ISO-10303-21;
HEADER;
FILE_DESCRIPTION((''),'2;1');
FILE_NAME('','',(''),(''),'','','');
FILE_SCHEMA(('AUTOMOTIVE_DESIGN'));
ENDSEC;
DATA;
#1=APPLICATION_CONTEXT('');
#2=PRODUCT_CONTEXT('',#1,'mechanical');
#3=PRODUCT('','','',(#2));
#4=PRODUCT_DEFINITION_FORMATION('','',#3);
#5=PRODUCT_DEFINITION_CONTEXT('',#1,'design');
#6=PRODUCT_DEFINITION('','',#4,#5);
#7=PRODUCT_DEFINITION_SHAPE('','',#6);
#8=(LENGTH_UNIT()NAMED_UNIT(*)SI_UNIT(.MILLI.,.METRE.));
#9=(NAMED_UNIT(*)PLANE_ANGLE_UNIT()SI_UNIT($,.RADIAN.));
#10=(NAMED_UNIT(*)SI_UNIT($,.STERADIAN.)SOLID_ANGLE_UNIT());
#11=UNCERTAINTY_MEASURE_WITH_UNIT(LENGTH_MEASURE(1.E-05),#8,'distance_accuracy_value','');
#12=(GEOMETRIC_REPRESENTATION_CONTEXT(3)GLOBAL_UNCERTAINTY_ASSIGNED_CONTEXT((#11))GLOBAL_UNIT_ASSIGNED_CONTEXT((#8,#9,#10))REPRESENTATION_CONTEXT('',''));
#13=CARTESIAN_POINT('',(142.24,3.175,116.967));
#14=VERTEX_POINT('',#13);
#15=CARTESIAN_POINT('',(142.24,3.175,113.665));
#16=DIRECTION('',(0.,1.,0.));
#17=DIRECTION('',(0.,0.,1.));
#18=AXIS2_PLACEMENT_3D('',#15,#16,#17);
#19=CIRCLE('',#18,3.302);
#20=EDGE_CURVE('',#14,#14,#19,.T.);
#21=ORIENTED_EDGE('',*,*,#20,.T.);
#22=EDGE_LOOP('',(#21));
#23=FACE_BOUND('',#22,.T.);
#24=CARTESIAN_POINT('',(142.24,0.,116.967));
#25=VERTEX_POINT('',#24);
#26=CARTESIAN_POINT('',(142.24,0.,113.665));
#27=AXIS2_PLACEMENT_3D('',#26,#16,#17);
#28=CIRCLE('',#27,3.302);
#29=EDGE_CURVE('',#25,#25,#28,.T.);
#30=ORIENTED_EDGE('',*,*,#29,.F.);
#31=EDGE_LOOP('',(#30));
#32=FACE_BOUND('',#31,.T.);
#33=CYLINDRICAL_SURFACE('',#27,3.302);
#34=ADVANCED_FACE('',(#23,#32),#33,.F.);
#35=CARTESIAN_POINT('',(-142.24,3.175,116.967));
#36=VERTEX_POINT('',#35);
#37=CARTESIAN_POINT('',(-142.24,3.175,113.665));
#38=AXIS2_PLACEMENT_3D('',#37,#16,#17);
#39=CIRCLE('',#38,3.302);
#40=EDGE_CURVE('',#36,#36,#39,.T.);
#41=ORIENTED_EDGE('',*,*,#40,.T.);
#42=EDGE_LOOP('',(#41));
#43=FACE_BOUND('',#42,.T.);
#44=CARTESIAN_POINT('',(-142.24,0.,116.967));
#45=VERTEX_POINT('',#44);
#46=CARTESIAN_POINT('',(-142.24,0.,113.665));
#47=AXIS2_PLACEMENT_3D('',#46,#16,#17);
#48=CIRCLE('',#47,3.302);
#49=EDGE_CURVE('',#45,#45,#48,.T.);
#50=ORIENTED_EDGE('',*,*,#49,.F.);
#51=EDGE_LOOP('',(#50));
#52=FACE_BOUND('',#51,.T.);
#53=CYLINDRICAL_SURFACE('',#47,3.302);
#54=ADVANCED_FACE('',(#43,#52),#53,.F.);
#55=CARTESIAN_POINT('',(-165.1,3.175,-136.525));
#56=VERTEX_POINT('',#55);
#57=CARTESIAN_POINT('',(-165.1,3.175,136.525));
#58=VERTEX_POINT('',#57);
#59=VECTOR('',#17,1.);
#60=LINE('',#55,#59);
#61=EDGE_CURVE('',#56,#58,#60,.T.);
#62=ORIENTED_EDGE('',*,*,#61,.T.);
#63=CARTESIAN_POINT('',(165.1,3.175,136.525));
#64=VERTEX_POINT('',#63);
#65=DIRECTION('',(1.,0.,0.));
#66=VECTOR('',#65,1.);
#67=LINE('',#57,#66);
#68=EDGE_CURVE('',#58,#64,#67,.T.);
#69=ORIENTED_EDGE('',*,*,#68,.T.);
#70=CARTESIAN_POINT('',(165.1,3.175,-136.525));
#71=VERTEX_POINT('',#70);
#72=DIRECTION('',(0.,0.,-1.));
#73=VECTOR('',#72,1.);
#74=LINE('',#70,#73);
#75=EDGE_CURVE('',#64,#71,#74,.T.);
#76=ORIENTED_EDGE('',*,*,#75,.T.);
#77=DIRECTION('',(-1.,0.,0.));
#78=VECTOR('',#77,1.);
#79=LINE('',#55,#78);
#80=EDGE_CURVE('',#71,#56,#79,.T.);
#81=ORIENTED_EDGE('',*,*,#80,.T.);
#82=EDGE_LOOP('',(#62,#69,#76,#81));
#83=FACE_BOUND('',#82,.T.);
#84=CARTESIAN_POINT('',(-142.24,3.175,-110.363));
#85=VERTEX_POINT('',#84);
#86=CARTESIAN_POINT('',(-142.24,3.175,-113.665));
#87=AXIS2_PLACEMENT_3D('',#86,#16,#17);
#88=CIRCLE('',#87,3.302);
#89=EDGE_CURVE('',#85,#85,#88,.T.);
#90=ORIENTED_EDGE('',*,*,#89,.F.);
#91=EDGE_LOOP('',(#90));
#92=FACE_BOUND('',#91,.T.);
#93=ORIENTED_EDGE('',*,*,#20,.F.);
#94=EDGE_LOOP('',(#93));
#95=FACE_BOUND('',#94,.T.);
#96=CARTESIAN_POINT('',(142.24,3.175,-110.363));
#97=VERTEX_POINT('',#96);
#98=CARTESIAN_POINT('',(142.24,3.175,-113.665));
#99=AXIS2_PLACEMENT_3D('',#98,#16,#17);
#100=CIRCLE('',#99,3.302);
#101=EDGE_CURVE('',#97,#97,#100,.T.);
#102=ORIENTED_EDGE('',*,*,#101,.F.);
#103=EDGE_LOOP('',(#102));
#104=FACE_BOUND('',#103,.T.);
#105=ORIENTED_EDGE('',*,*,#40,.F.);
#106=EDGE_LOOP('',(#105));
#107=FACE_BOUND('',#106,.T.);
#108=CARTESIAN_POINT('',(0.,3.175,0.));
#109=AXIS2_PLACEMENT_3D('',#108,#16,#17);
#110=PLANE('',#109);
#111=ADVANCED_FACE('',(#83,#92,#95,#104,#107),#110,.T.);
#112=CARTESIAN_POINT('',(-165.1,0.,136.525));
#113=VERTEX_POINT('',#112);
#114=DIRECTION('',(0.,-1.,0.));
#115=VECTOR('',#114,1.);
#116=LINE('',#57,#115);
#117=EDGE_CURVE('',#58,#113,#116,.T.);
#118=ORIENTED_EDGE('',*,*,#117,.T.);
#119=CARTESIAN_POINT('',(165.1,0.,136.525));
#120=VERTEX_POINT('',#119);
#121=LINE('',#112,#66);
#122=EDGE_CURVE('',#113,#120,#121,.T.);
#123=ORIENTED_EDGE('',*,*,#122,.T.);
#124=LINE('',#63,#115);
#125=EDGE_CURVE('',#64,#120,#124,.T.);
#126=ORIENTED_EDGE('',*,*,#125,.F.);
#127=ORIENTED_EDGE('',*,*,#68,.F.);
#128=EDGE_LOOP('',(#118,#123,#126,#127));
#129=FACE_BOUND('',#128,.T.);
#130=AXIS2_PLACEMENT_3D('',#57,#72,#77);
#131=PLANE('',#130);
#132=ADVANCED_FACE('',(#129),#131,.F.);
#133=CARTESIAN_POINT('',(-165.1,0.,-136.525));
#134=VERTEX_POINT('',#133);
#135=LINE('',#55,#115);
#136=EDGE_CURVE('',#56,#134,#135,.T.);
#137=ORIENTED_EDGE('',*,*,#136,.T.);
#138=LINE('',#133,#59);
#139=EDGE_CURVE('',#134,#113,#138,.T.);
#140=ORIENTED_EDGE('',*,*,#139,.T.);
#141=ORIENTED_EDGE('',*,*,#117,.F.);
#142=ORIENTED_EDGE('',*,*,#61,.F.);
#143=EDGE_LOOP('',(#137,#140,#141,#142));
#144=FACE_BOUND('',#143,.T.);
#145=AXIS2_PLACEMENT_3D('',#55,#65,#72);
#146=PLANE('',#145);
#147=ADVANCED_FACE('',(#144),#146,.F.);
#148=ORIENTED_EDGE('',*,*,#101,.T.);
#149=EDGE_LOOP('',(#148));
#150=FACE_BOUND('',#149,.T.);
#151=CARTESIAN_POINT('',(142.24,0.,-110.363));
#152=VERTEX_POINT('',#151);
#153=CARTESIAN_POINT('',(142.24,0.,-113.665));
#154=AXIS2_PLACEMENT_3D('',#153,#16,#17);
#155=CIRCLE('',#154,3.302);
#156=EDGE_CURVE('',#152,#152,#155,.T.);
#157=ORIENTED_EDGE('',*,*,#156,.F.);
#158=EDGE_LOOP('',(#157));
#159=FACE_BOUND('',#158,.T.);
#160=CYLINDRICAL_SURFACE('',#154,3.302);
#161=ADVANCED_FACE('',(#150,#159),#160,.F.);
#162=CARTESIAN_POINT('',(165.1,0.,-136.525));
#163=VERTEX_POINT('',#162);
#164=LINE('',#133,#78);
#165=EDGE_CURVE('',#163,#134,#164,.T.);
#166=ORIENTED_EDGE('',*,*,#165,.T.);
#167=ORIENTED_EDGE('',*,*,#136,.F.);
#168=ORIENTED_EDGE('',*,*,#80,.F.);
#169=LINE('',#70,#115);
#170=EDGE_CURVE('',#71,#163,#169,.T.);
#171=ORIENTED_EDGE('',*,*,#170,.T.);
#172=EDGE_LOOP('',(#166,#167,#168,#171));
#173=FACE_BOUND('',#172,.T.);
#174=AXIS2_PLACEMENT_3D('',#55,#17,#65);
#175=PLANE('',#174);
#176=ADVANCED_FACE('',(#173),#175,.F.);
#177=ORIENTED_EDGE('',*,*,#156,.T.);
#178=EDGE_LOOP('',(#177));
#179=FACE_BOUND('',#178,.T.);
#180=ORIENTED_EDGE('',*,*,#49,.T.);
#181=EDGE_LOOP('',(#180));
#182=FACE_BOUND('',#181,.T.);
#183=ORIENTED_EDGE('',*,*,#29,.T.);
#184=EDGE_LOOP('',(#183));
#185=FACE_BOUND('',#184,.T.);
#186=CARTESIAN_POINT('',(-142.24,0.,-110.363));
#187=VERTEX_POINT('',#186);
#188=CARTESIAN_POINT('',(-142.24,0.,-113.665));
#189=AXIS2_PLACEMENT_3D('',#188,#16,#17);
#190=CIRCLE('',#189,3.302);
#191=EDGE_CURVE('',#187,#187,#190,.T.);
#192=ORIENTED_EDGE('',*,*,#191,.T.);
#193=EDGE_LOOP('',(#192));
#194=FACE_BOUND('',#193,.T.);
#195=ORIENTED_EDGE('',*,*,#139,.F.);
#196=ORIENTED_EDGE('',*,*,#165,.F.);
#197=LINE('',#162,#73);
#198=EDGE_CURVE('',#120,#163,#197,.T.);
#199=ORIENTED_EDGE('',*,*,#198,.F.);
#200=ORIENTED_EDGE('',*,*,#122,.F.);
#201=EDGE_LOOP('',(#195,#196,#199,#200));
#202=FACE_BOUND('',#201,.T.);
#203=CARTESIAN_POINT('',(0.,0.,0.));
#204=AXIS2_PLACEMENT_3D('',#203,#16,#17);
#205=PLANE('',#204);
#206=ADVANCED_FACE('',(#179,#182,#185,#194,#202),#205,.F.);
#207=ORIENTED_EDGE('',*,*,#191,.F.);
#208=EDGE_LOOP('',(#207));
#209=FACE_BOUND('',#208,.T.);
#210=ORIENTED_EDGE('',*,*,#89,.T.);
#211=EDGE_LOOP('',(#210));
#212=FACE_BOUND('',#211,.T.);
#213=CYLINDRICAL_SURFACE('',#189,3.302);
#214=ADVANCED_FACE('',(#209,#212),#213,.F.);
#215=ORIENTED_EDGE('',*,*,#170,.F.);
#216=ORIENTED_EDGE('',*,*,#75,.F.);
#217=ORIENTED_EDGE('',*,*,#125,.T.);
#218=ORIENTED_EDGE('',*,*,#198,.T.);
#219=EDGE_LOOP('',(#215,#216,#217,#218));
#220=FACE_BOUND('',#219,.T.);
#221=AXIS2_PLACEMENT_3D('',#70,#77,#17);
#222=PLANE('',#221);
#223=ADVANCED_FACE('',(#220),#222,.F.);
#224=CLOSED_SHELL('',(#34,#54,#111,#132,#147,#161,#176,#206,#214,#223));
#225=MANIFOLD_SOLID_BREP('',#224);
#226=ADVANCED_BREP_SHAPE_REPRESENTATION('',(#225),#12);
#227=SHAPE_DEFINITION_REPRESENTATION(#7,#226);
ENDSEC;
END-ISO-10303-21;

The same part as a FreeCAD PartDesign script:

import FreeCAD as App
import Part
import Sketcher
from FreeCAD import Vector
Q = App.Units.Quantity


def add_polygon(sketch, points):
    """Adds a closed chain of lines whose ends are joined by coincident constraints."""
    first, n = sketch.GeometryCount, len(points)
    for a, b in zip(points, points[1:] + points[:1]):
        sketch.addGeometry(Part.LineSegment(App.Vector(*a, 0), App.Vector(*b, 0)), False)
    for i in range(n):
        sketch.addConstraint(Sketcher.Constraint("Coincident", first + i, 2, first + (i + 1) % n, 1))

doc = App.newDocument("Part")
body = doc.addObject("PartDesign::Body", "Body")

# Sketch on XZ plane
sketch1 = doc.addObject("Sketcher::SketchObject", "Sketch")
body.addObject(sketch1)
sketch1.AttachmentSupport = (doc.XZ_Plane, [""])
sketch1.MapMode = "FlatFace"
add_polygon(sketch1, [(-165, -137), (-165, 137), (165, 137), (165, -137)])  # lines 0-3
sketch1.addConstraint([
    Sketcher.Constraint("Vertical", 0),
    Sketcher.Constraint("Horizontal", 1),
    Sketcher.Constraint("Vertical", 2),
    Sketcher.Constraint("Horizontal", 3),
    Sketcher.Constraint("Symmetric", 0, 2, 2, 2, -1, 1),
    Sketcher.Constraint("DistanceX", 1, 1, 1, 2, Q("13 in")),
    Sketcher.Constraint("DistanceY", 0, 1, 0, 2, Q("10.75 in")),
])
pad1 = doc.addObject("PartDesign::Pad", "Pad")
body.addObject(pad1)
pad1.Profile = sketch1
pad1.Length = Q("0.125 in")
pad1.Reversed = True

# Sketch on XZ plane
sketch2 = doc.addObject("Sketcher::SketchObject", "Sketch001")
body.addObject(sketch2)
sketch2.AttachmentSupport = (doc.XZ_Plane, [""])
sketch2.MapMode = "FlatFace"
sketch2.AttachmentOffset = App.Placement(Vector(0, 0, -0.125 * 25.4), App.Rotation())
sketch2.addGeometry([
    Part.Circle(Vector(-142.2, 113.7, 0), Vector(0, 0, 1), 3.3),
    Part.Circle(Vector(-142.2, -113.7, 0), Vector(0, 0, 1), 3.3),
    Part.Circle(Vector(142.2, 113.7, 0), Vector(0, 0, 1), 3.3),
    Part.Circle(Vector(142.2, -113.7, 0), Vector(0, 0, 1), 3.3),
], False)
sketch2.addConstraint([
    Sketcher.Constraint("Equal", 0, 1),
    Sketcher.Constraint("Equal", 1, 2),
    Sketcher.Constraint("Equal", 2, 3),
    Sketcher.Constraint("Symmetric", 1, 3, 2, 3, -1, 1),
    Sketcher.Constraint("Symmetric", 0, 3, 3, 3, -1, 1),
    Sketcher.Constraint("Symmetric", 0, 3, 2, 3, -2),
    Sketcher.Constraint("Diameter", 0, Q("0.26 in")),
    Sketcher.Constraint("DistanceX", 0, 3, -1, 1, Q("5.6 in")),
    Sketcher.Constraint("DistanceY", 1, 3, 0, 3, Q("8.95 in")),
])
pocket1 = doc.addObject("PartDesign::Pocket", "Pocket")
body.addObject(pocket1)
pocket1.Profile = sketch2
pocket1.Type = "ThroughAll"
pocket1.Reversed = True

doc.recompute()
